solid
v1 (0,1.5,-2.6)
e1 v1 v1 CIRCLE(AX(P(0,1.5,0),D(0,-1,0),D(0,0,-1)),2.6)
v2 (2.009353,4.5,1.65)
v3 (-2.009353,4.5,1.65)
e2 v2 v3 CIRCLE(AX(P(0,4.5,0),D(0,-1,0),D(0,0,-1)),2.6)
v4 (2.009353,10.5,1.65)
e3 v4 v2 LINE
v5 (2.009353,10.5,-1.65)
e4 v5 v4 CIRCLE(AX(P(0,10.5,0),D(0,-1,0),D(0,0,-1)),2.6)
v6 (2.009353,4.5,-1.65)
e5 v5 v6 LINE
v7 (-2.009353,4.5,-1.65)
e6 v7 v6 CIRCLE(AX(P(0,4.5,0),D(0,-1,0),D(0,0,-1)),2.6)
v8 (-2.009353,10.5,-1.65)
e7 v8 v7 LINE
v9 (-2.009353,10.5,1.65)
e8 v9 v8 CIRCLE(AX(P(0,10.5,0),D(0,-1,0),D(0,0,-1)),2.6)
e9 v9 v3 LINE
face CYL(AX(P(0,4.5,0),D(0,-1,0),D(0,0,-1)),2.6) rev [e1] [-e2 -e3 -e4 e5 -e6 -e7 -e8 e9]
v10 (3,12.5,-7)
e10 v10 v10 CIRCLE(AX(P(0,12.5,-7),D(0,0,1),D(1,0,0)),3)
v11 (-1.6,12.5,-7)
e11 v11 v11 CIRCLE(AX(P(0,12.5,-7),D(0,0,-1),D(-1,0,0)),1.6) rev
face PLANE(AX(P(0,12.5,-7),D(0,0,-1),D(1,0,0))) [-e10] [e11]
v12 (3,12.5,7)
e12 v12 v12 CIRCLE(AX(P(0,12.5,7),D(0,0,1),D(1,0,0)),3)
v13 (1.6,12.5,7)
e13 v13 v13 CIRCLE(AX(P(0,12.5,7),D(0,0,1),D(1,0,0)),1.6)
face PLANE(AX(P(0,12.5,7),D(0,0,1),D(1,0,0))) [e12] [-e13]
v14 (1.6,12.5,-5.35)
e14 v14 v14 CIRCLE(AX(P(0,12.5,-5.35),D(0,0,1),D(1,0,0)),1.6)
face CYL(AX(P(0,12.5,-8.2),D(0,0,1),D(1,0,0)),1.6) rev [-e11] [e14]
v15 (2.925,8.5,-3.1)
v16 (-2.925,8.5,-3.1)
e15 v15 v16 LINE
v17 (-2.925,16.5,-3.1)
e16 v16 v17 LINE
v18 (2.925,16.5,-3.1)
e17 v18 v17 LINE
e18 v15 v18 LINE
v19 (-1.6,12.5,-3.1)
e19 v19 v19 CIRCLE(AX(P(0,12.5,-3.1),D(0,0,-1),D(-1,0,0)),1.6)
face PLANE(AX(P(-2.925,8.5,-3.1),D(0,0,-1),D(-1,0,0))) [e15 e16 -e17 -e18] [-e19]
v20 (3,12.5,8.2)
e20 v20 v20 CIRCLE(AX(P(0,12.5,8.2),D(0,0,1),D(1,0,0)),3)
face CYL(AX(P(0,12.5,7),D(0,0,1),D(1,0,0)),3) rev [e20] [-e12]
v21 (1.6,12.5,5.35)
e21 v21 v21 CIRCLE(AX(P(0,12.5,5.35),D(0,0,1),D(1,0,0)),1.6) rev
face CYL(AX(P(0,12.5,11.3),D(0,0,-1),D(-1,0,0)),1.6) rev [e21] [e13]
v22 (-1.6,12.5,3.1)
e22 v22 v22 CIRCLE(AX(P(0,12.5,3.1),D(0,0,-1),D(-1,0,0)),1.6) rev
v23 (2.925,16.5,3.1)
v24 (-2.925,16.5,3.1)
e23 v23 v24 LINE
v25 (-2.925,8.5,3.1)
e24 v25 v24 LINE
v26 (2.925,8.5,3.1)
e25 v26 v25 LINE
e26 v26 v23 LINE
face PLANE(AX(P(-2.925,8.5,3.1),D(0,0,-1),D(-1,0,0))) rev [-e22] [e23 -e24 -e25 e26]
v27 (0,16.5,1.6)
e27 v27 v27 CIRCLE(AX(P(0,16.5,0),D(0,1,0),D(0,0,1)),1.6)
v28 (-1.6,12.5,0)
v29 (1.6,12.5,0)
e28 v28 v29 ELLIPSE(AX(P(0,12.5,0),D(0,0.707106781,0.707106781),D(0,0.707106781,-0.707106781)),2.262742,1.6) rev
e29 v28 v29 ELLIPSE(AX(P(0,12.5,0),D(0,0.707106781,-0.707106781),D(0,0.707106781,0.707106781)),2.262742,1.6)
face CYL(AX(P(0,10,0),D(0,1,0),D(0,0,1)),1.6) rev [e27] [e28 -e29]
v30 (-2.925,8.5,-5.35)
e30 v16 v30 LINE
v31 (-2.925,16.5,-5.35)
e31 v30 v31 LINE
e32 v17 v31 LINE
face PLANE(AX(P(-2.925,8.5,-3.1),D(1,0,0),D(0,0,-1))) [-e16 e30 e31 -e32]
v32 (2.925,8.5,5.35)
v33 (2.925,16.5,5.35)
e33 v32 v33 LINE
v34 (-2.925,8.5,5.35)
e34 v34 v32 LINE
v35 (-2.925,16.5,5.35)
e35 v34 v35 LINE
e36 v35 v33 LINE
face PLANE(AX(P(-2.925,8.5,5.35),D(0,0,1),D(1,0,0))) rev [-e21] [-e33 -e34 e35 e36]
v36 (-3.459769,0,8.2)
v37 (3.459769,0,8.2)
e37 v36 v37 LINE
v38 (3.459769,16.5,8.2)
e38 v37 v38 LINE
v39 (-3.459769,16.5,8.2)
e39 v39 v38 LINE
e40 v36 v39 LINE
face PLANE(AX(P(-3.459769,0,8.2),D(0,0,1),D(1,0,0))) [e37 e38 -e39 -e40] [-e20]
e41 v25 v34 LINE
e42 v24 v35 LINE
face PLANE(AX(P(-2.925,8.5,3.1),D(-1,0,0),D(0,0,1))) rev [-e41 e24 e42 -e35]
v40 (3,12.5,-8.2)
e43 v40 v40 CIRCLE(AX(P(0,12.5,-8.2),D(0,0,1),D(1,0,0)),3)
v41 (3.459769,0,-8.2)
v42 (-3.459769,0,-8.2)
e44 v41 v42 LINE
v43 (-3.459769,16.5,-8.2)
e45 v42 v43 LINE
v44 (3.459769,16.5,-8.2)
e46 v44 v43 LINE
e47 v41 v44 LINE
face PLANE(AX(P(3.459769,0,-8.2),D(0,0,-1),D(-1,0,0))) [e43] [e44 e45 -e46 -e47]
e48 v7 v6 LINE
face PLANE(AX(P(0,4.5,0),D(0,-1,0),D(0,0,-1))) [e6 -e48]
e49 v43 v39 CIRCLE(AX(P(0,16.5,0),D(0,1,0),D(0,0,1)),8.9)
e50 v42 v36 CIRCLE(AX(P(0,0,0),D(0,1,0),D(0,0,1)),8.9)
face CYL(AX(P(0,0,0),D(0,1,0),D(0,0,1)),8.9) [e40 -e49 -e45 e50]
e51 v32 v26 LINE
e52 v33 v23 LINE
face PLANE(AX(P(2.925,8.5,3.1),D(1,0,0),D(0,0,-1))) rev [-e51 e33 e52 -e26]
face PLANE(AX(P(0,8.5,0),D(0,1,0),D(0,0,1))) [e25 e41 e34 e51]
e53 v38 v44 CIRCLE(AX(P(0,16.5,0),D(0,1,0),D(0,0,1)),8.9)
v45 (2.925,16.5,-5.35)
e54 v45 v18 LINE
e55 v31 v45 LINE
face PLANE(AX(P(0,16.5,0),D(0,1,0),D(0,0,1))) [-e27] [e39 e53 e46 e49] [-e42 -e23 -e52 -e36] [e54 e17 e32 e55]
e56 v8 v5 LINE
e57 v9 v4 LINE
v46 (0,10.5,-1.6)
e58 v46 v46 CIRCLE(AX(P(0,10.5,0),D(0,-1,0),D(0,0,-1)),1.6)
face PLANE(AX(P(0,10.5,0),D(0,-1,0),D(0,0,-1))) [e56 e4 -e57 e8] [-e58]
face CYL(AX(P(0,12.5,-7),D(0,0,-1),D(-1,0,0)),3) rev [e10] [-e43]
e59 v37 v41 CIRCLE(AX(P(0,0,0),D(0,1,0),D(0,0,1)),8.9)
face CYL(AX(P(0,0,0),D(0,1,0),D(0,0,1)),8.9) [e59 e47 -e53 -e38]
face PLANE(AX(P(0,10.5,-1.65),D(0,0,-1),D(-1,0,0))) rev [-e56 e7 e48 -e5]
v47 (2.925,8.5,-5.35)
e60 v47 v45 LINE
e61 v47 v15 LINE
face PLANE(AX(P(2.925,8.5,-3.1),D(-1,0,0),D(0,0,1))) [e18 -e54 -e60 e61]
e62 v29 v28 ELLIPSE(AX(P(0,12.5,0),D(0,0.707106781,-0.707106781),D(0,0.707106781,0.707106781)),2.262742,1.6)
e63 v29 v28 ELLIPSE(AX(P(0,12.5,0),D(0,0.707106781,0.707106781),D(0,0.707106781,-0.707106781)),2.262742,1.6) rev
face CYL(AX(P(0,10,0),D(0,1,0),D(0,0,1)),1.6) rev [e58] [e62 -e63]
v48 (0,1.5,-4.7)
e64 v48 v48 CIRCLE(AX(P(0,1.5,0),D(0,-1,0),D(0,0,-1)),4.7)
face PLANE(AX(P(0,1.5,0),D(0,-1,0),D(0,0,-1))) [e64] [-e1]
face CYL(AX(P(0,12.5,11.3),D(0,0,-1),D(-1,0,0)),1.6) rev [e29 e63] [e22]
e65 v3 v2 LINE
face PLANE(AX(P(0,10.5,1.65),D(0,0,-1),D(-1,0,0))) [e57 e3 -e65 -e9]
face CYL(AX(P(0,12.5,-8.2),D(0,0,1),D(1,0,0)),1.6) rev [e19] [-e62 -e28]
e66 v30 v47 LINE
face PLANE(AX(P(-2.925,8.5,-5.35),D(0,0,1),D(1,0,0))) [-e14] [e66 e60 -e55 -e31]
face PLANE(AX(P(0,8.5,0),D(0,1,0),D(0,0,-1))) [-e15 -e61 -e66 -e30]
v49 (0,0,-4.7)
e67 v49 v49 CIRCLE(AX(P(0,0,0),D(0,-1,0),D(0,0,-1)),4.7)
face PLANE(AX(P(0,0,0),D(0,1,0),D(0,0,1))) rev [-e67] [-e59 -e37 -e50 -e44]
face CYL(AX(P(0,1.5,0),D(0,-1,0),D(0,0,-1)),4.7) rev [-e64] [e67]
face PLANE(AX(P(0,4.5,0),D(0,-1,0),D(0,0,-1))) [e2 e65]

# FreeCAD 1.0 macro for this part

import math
import FreeCAD as App
import Part
import Sketcher

V = App.Vector
Q = App.Units.Quantity


def add_polygon(sketch, points):
    """Adds a closed chain of lines whose ends are joined by coincident constraints."""
    first, n = sketch.GeometryCount, len(points)
    for a, b in zip(points, points[1:] + points[:1]):
        sketch.addGeometry(Part.LineSegment(App.Vector(*a, 0), App.Vector(*b, 0)), False)
    for i in range(n):
        sketch.addConstraint(Sketcher.Constraint("Coincident", first + i, 2, first + (i + 1) % n, 1))

doc = App.newDocument("Part")
body = doc.addObject("PartDesign::Body", "Body")

# Sketch on XZ plane
sketch1 = body.newObject("Sketcher::SketchObject", "Sketch")
sketch1.AttachmentSupport = (doc.getObject("XZ_Plane"), [""])
sketch1.MapMode = "FlatFace"
sketch1.addGeometry(Part.Circle(V(0, 0, 0), V(0, 0, 1), 11), False)
sketch1.addConstraint([
    Sketcher.Constraint("Coincident", 0, 3, -1, 1),
    Sketcher.Constraint("Diameter", 0, Q("22.6 mm")),
])
pad1 = body.newObject("PartDesign::Pad", "Pad")
pad1.Profile = sketch1
pad1.Length = 16.5
pad1.Reversed = True

# Sketch on XZ plane
sketch2 = body.newObject("Sketcher::SketchObject", "Sketch001")
sketch2.AttachmentSupport = (doc.getObject("XZ_Plane"), [""])
sketch2.MapMode = "FlatFace"
sketch2.addGeometry(Part.Circle(V(0, 0, 0), V(0, 0, 1), 4.7), False)
sketch2.addConstraint([
    Sketcher.Constraint("Coincident", 0, 3, -1, 1),
    Sketcher.Constraint("Diameter", 0, Q("9.4 mm")),
])
pocket1 = body.newObject("PartDesign::Pocket", "Pocket")
pocket1.Profile = sketch2
pocket1.Length = 1.5

# Sketch on XZ plane
sketch3 = body.newObject("Sketcher::SketchObject", "Sketch002")
sketch3.AttachmentSupport = (doc.getObject("XZ_Plane"), [""])
sketch3.MapMode = "FlatFace"
sketch3.AttachmentOffset = App.Placement(V(0, 0, -1.5), App.Rotation())
sketch3.addGeometry(Part.Circle(V(0, 0, 0), V(0, 0, 1), 2.6), False)
sketch3.addConstraint([
    Sketcher.Constraint("Coincident", 0, 3, -1, 1),
    Sketcher.Constraint("Diameter", 0, Q("5.2 mm")),
])
pocket2 = body.newObject("PartDesign::Pocket", "Pocket001")
pocket2.Profile = sketch3
pocket2.Length = 3

# Sketch on XZ plane
sketch4 = body.newObject("Sketcher::SketchObject", "Sketch003")
sketch4.AttachmentSupport = (doc.getObject("XZ_Plane"), [""])
sketch4.MapMode = "FlatFace"
sketch4.AttachmentOffset = App.Placement(V(0, 0, -4.5), App.Rotation())
sketch4.addGeometry([
    Part.LineSegment(V(2, 1.6, 0), V(-2, 1.6, 0)),  # 0
    Part.ArcOfCircle(Part.Circle(V(0, 0, 0), V(0, 0, 1), 2.6), math.radians(141), math.radians(219)),  # 1
    Part.LineSegment(V(-2, -1.6, 0), V(2, -1.6, 0)),  # 2
    Part.ArcOfCircle(Part.Circle(V(0, 0, 0), V(0, 0, 1), 2.6), math.radians(-39), math.radians(0)),  # 3
    Part.ArcOfCircle(Part.Circle(V(0, 0, 0), V(0, 0, 1), 2.6), math.radians(0), math.radians(39)),  # 4
], False)
sketch4.addConstraint([
    Sketcher.Constraint("Coincident", 0, 2, 1, 1),
    Sketcher.Constraint("Coincident", 1, 2, 2, 1),
    Sketcher.Constraint("Coincident", 2, 2, 3, 1),
    Sketcher.Constraint("Tangent", 3, 2, 4, 1),
    Sketcher.Constraint("Coincident", 4, 2, 0, 1),
    Sketcher.Constraint("Horizontal", 0),
    Sketcher.Constraint("Horizontal", 2),
    Sketcher.Constraint("Coincident", 1, 3, -1, 1),
    Sketcher.Constraint("Coincident", 3, 3, -1, 1),
    Sketcher.Constraint("Equal", 1, 3),
    Sketcher.Constraint("Equal", 3, 4),
    Sketcher.Constraint("PointOnObject", 3, 2, -1),
    Sketcher.Constraint("Vertical", 0, 2, 1, 2),
    Sketcher.Constraint("Radius", 1, Q("2.6 mm")),
    Sketcher.Constraint("DistanceY", 1, 2, 0, 2, Q("3.3 mm")),
])
pocket3 = body.newObject("PartDesign::Pocket", "Pocket002")
pocket3.Profile = sketch4
pocket3.Length = 6

# Sketch on XZ plane
sketch5 = body.newObject("Sketcher::SketchObject", "Sketch004")
sketch5.AttachmentSupport = (doc.getObject("XZ_Plane"), [""])
sketch5.MapMode = "FlatFace"
sketch5.AttachmentOffset = App.Placement(V(0, 0, -16.5), App.Rotation())
sketch5.addGeometry(Part.Circle(V(0, 0, 0), V(0, 0, 1), 1.6), False)
sketch5.addConstraint([
    Sketcher.Constraint("Coincident", 0, 3, -1, 1),
    Sketcher.Constraint("Diameter", 0, Q("3.2 mm")),
])
pocket4 = body.newObject("PartDesign::Pocket", "Pocket003")
pocket4.Profile = sketch5
pocket4.Length = 6.5
pocket4.Reversed = True

# Sketch on XZ plane
sketch6 = body.newObject("Sketcher::SketchObject", "Sketch005")
sketch6.AttachmentSupport = (doc.getObject("XZ_Plane"), [""])
sketch6.MapMode = "FlatFace"
sketch6.AttachmentOffset = App.Placement(V(0, 0, -16.5), App.Rotation())
add_polygon(sketch6, [(-2.9, 3.1), (-2.9, 5.3), (2.9, 5.3), (2.9, 3.1)])  # lines 0-3
sketch6.addConstraint([
    Sketcher.Constraint("Vertical", 0),
    Sketcher.Constraint("Horizontal", 1),
    Sketcher.Constraint("Vertical", 2),
    Sketcher.Constraint("Horizontal", 3),
    Sketcher.Constraint("DistanceX", 1, 1, 1, 2, Q("5.85 mm")),
    Sketcher.Constraint("DistanceY", 0, 1, 0, 2, Q("2.25 mm")),
    Sketcher.Constraint("DistanceY", -1, 1, 2, 2, Q("3.1 mm")),
    Sketcher.Constraint("DistanceX", 0, 2, -1, 1, Q("2.925 mm")),
])
pocket5 = body.newObject("PartDesign::Pocket", "Pocket004")
pocket5.Profile = sketch6
pocket5.Length = 8
pocket5.Reversed = True

# Sketch on XY plane
sketch7 = body.newObject("Sketcher::SketchObject", "Sketch006")
sketch7.AttachmentSupport = (doc.getObject("XY_Plane"), [""])
sketch7.MapMode = "FlatFace"
sketch7.addGeometry(Part.Circle(V(0, 12.5, 0), V(0, 0, 1), 1.6), False)
sketch7.addConstraint([
    Sketcher.Constraint("PointOnObject", 0, 3, -2),
    Sketcher.Constraint("Diameter", 0, Q("3.2 mm")),
    Sketcher.Constraint("DistanceY", -1, 1, 0, 3, Q("12.5 mm")),
])
pocket6 = body.newObject("PartDesign::Pocket", "Pocket005")
pocket6.Profile = sketch7
pocket6.Length = 28.743458
pocket6.Reversed = True

# Sketch on XZ plane
sketch8 = body.newObject("Sketcher::SketchObject", "Sketch007")
sketch8.AttachmentSupport = (doc.getObject("XZ_Plane"), [""])
sketch8.MapMode = "FlatFace"
sketch8.AttachmentOffset = App.Placement(V(0, 0, -16.5), App.Rotation())
sketch8.addGeometry([
    Part.Circle(V(0, 0, 0), V(0, 0, 1), 11),  # 0
    Part.LineSegment(V(3, 8, 0), V(-3, 8, 0)),  # 1
    Part.ArcOfCircle(Part.Circle(V(0, 0, 0), V(0, 0, 1), 9), math.radians(113), math.radians(247)),  # 2
    Part.LineSegment(V(-3, -8, 0), V(3, -8, 0)),  # 3
    Part.ArcOfCircle(Part.Circle(V(0, 0, 0), V(0, 0, 1), 9), math.radians(-67), math.radians(67)),  # 4
], False)
sketch8.addConstraint([
    Sketcher.Constraint("Coincident", 1, 2, 2, 1),
    Sketcher.Constraint("Coincident", 2, 2, 3, 1),
    Sketcher.Constraint("Coincident", 3, 2, 4, 1),
    Sketcher.Constraint("Coincident", 4, 2, 1, 1),
    Sketcher.Constraint("Horizontal", 1),
    Sketcher.Constraint("Horizontal", 3),
    Sketcher.Constraint("Coincident", 0, 3, -1, 1),
    Sketcher.Constraint("Coincident", 2, 3, -1, 1),
    Sketcher.Constraint("Coincident", 4, 3, -1, 1),
    Sketcher.Constraint("Equal", 2, 4),
    Sketcher.Constraint("Vertical", 1, 2, 2, 2),
    Sketcher.Constraint("Diameter", 0, Q("22.6 mm")),
    Sketcher.Constraint("Radius", 2, Q("8.9 mm")),
    Sketcher.Constraint("DistanceY", -1, 1, 1, 2, Q("8.2 mm")),
])
pocket7 = body.newObject("PartDesign::Pocket", "Pocket006")
pocket7.Profile = sketch8
pocket7.Type = "ThroughAll"
pocket7.Reversed = True

# Sketch on XY plane
sketch9 = body.newObject("Sketcher::SketchObject", "Sketch008")
sketch9.AttachmentSupport = (doc.getObject("XY_Plane"), [""])
sketch9.MapMode = "FlatFace"
sketch9.AttachmentOffset = App.Placement(V(0, 0, 8.2), App.Rotation())
sketch9.addGeometry(Part.Circle(V(0, 12.5, 0), V(0, 0, 1), 3), False)
sketch9.addConstraint([
    Sketcher.Constraint("PointOnObject", 0, 3, -2),
    Sketcher.Constraint("Diameter", 0, Q("6 mm")),
    Sketcher.Constraint("DistanceY", -1, 1, 0, 3, Q("12.5 mm")),
])
pocket8 = body.newObject("PartDesign::Pocket", "Pocket007")
pocket8.Profile = sketch9
pocket8.Length = 1.2
doc.recompute()

mirrored = body.newObject("PartDesign::Mirrored", "Mirrored")
mirrored.Originals = [pocket5, pocket6, pocket8]
mirrored.MirrorPlane = (doc.getObject("XY_Plane"), [""])
body.Tip = mirrored

doc.recompute()
